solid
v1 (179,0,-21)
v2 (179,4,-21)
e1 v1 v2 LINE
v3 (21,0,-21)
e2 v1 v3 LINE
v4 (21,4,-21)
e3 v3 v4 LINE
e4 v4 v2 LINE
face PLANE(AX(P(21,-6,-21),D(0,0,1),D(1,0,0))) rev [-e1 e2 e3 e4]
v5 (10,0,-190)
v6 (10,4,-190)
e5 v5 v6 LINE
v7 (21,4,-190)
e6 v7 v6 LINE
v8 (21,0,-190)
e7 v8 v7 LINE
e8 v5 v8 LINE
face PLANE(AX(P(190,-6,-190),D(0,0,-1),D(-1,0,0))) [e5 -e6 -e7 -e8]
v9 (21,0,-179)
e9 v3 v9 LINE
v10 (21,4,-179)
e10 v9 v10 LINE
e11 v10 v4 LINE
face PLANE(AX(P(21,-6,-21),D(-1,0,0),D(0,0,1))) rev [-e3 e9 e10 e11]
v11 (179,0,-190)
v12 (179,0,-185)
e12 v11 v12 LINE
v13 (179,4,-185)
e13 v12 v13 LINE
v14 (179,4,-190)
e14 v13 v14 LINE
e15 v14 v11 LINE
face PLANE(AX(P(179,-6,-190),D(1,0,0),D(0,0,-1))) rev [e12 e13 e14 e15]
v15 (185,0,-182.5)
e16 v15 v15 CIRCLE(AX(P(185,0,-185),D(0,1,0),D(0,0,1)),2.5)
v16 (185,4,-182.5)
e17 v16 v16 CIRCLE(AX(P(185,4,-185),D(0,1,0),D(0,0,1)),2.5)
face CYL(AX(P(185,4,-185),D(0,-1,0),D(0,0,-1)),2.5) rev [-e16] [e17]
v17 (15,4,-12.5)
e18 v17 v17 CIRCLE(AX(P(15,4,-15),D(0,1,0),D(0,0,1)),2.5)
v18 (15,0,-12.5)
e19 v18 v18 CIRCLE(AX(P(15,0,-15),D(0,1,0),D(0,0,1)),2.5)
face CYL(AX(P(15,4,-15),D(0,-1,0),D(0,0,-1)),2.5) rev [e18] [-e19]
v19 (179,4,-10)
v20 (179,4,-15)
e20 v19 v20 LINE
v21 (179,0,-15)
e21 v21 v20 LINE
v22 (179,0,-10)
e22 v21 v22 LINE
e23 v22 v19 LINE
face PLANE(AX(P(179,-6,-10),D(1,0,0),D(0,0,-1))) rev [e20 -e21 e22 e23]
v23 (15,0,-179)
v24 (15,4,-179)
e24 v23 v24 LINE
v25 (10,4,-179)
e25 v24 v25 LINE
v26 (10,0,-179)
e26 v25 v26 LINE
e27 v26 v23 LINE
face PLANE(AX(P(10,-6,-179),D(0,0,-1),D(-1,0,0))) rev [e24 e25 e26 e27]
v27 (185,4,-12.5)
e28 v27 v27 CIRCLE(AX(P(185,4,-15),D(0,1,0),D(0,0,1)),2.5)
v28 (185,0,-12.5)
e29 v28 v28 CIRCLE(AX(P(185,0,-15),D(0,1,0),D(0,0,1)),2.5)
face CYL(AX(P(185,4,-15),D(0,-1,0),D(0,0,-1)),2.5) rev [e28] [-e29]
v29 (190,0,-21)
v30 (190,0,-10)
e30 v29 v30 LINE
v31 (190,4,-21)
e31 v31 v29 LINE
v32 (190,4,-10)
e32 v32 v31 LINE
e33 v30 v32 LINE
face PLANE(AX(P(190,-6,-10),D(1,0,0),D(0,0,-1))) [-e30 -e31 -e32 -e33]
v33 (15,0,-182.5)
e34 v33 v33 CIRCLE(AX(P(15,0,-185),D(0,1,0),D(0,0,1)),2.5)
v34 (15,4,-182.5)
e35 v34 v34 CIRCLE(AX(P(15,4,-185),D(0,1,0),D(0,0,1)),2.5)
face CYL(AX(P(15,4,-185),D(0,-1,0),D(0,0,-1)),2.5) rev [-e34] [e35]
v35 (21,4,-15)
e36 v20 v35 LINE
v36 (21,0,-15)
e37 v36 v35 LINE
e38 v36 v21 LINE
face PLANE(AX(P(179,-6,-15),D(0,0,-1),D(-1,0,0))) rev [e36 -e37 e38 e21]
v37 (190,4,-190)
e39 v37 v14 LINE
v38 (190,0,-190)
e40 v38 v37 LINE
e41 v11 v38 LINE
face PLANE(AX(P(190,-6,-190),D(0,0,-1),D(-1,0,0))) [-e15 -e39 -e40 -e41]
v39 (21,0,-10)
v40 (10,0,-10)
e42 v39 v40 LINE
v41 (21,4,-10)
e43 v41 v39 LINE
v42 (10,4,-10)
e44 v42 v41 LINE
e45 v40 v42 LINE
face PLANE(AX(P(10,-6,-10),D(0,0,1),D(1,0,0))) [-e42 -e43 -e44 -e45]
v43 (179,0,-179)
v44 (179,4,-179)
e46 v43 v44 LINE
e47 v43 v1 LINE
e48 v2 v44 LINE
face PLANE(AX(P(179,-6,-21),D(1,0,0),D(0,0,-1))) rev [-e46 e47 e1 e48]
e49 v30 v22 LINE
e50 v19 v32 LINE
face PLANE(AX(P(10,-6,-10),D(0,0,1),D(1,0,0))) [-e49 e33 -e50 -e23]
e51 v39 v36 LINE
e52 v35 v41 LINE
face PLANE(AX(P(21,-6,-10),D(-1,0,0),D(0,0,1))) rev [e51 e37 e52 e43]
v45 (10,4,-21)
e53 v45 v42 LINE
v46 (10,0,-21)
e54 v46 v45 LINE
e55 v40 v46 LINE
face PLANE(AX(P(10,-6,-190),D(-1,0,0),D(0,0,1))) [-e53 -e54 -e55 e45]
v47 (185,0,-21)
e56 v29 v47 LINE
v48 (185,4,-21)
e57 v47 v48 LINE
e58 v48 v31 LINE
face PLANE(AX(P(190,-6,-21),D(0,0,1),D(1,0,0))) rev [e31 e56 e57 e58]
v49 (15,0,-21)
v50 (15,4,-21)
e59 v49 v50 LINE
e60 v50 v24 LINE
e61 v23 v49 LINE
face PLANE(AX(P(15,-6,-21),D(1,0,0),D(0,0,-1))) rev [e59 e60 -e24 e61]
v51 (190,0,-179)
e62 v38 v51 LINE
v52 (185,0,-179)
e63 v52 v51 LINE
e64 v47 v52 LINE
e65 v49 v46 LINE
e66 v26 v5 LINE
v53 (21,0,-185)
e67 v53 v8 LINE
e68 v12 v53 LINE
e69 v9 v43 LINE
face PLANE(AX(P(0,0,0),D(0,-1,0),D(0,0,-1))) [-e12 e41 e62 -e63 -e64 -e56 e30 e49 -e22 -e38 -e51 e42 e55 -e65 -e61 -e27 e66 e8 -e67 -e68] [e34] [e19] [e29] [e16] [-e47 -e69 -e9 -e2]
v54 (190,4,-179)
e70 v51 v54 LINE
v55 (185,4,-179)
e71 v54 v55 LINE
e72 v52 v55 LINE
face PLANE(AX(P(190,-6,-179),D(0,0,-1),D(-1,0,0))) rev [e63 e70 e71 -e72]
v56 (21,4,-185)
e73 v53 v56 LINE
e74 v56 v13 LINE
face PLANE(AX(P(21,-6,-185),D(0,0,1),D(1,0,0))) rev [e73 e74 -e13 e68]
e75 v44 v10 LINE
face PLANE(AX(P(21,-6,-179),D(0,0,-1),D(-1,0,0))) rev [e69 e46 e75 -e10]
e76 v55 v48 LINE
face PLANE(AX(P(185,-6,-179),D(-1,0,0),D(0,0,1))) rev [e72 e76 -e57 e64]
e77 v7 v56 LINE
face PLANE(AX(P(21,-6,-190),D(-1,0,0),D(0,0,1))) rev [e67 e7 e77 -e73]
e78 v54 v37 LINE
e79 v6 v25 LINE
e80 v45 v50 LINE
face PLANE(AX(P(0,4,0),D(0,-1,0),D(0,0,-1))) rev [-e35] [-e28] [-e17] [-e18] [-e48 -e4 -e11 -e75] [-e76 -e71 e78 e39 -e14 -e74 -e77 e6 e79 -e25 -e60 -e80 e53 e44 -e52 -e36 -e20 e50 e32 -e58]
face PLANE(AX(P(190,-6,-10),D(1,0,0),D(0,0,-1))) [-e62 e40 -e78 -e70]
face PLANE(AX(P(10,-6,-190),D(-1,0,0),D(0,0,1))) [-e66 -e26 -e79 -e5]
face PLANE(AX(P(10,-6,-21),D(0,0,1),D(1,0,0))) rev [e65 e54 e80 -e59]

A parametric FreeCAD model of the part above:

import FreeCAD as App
import Part
import Sketcher
Q = App.Units.Quantity

doc = App.newDocument("Part")
params = doc.addObject("Spreadsheet::Sheet", "Params")
for row, (alias, value) in enumerate([
    ("sketch1_diameter", "5 mm"),
    ("sketch1_width", "200 mm"),
    ("pad1_length", "4 mm"),
    ("sketch2_width", "158 mm"),
    ("pocket1_length", "10 mm"),
    ("sketch3_width", "200 mm"),
    ("sketch3_width2", "180 mm"),
    ("pocket2_length", "10 mm"),
    ("sketch4_width", "158 mm"),
    ("sketch4_width2", "5 mm"),
    ("pocket3_length", "10 mm"),
], start=1):
    params.set(f"A{row}", alias)
    params.set(f"B{row}", "=" + value)
    params.setAlias(f"B{row}", alias)

body = doc.addObject("PartDesign::Body", "Body")

# Sketch on XZ plane
sketch1 = doc.addObject("Sketcher::SketchObject", "Sketch")
body.addObject(sketch1)
sketch1.AttachmentSupport = (doc.XZ_Plane, [""])
sketch1.MapMode = "FlatFace"
sketch1.addGeometry([
    Part.LineSegment(App.Vector(0, -200, 0), App.Vector(0, 0, 0)),  # 0
    Part.LineSegment(App.Vector(0, 0, 0), App.Vector(200, 0, 0)),  # 1
    Part.LineSegment(App.Vector(200, 0, 0), App.Vector(200, -200, 0)),  # 2
    Part.LineSegment(App.Vector(200, -200, 0), App.Vector(0, -200, 0)),  # 3
    Part.Circle(App.Vector(15, -15, 0), App.Vector(0, 0, 1), 2.5),  # 4
    Part.Circle(App.Vector(185, -15, 0), App.Vector(0, 0, 1), 2.5),  # 5
    Part.Circle(App.Vector(15, -185, 0), App.Vector(0, 0, 1), 2.5),  # 6
    Part.Circle(App.Vector(185, -185, 0), App.Vector(0, 0, 1), 2.5),  # 7
], False)
sketch1.addConstraint([
    Sketcher.Constraint("Coincident", 0, 2, 1, 1),
    Sketcher.Constraint("Coincident", 1, 2, 2, 1),
    Sketcher.Constraint("Coincident", 2, 2, 3, 1),
    Sketcher.Constraint("Coincident", 3, 2, 0, 1),
    Sketcher.Constraint("Vertical", 0),
    Sketcher.Constraint("Horizontal", 1),
    Sketcher.Constraint("Vertical", 2),
    Sketcher.Constraint("Horizontal", 3),
    Sketcher.Constraint("Coincident", 0, 2, -1, 1),
    Sketcher.Constraint("Equal", 4, 5),
    Sketcher.Constraint("Equal", 5, 6),
    Sketcher.Constraint("Equal", 6, 7),
    Sketcher.Constraint("Horizontal", 4, 3, 5, 3),
    Sketcher.Constraint("Horizontal", 6, 3, 7, 3),
    Sketcher.Constraint("Vertical", 4, 3, 6, 3),
    Sketcher.Constraint("Vertical", 5, 3, 7, 3),
    Sketcher.Constraint("Equal", 3, 0),
    Sketcher.Constraint("Diameter", 4, Q("5 mm")),
    Sketcher.Constraint("DistanceX", 1, 1, 1, 2, Q("200 mm")),
    Sketcher.Constraint("DistanceX", -1, 1, 4, 3, Q("15 mm")),
    Sketcher.Constraint("DistanceY", 4, 3, -1, 1, Q("15 mm")),
    Sketcher.Constraint("DistanceX", -1, 1, 5, 3, Q("185 mm")),
    Sketcher.Constraint("DistanceY", 6, 3, -1, 1, Q("185 mm")),
])
sketch1.setExpression("Constraints[17]", "Params.sketch1_diameter")
sketch1.setExpression("Constraints[18]", "Params.sketch1_width")
pad1 = doc.addObject("PartDesign::Pad", "Pad")
body.addObject(pad1)
pad1.Profile = sketch1
pad1.setExpression("Length", "Params.pad1_length")
pad1.Reversed = True

# Sketch on XZ plane
sketch2 = doc.addObject("Sketcher::SketchObject", "Sketch001")
body.addObject(sketch2)
sketch2.AttachmentSupport = (doc.XZ_Plane, [""])
sketch2.MapMode = "FlatFace"
sketch2.AttachmentOffset = App.Placement(App.Vector(0, 0, -4), App.Rotation())
sketch2.addGeometry([
    Part.LineSegment(App.Vector(21, -179, 0), App.Vector(21, -21, 0)),
    Part.LineSegment(App.Vector(21, -21, 0), App.Vector(179, -21, 0)),
    Part.LineSegment(App.Vector(179, -21, 0), App.Vector(179, -179, 0)),
    Part.LineSegment(App.Vector(179, -179, 0), App.Vector(21, -179, 0)),
], False)
sketch2.addConstraint([
    Sketcher.Constraint("Coincident", 0, 2, 1, 1),
    Sketcher.Constraint("Coincident", 1, 2, 2, 1),
    Sketcher.Constraint("Coincident", 2, 2, 3, 1),
    Sketcher.Constraint("Coincident", 3, 2, 0, 1),
    Sketcher.Constraint("Vertical", 0),
    Sketcher.Constraint("Horizontal", 1),
    Sketcher.Constraint("Vertical", 2),
    Sketcher.Constraint("Horizontal", 3),
    Sketcher.Constraint("Equal", 3, 0),
    Sketcher.Constraint("DistanceX", 1, 1, 1, 2, Q("158 mm")),
    Sketcher.Constraint("DistanceX", -1, 1, 0, 2, Q("21 mm")),
    Sketcher.Constraint("DistanceY", 0, 2, -1, 1, Q("21 mm")),
])
sketch2.setExpression("Constraints[9]", "Params.sketch2_width")
pocket1 = doc.addObject("PartDesign::Pocket", "Pocket")
body.addObject(pocket1)
pocket1.Profile = sketch2
pocket1.setExpression("Length", "Params.pocket1_length")
pocket1.Reversed = True

# Sketch on XZ plane
sketch3 = doc.addObject("Sketcher::SketchObject", "Sketch002")
body.addObject(sketch3)
sketch3.AttachmentSupport = (doc.XZ_Plane, [""])
sketch3.MapMode = "FlatFace"
sketch3.AttachmentOffset = App.Placement(App.Vector(0, 0, -4), App.Rotation())
sketch3.addGeometry([
    Part.LineSegment(App.Vector(0, -200, 0), App.Vector(0, 0, 0)),  # 0
    Part.LineSegment(App.Vector(0, 0, 0), App.Vector(200, 0, 0)),  # 1
    Part.LineSegment(App.Vector(200, 0, 0), App.Vector(200, -200, 0)),  # 2
    Part.LineSegment(App.Vector(200, -200, 0), App.Vector(0, -200, 0)),  # 3
    Part.LineSegment(App.Vector(190, -10, 0), App.Vector(10, -10, 0)),  # 4
    Part.LineSegment(App.Vector(10, -10, 0), App.Vector(10, -190, 0)),  # 5
    Part.LineSegment(App.Vector(10, -190, 0), App.Vector(190, -190, 0)),  # 6
    Part.LineSegment(App.Vector(190, -190, 0), App.Vector(190, -10, 0)),  # 7
], False)
sketch3.addConstraint([
    Sketcher.Constraint("Coincident", 0, 2, 1, 1),
    Sketcher.Constraint("Coincident", 1, 2, 2, 1),
    Sketcher.Constraint("Coincident", 2, 2, 3, 1),
    Sketcher.Constraint("Coincident", 3, 2, 0, 1),
    Sketcher.Constraint("Coincident", 4, 2, 5, 1),
    Sketcher.Constraint("Coincident", 5, 2, 6, 1),
    Sketcher.Constraint("Coincident", 6, 2, 7, 1),
    Sketcher.Constraint("Coincident", 7, 2, 4, 1),
    Sketcher.Constraint("Vertical", 0),
    Sketcher.Constraint("Horizontal", 1),
    Sketcher.Constraint("Vertical", 2),
    Sketcher.Constraint("Horizontal", 3),
    Sketcher.Constraint("Horizontal", 4),
    Sketcher.Constraint("Vertical", 5),
    Sketcher.Constraint("Horizontal", 6),
    Sketcher.Constraint("Vertical", 7),
    Sketcher.Constraint("Coincident", 0, 2, -1, 1),
    Sketcher.Constraint("Equal", 3, 0),
    Sketcher.Constraint("Equal", 6, 5),
    Sketcher.Constraint("DistanceX", 1, 1, 1, 2, Q("200 mm")),
    Sketcher.Constraint("DistanceX", 4, 2, 4, 1, Q("180 mm")),
    Sketcher.Constraint("DistanceX", -1, 1, 4, 2, Q("10 mm")),
    Sketcher.Constraint("DistanceY", 4, 2, -1, 1, Q("10 mm")),
])
sketch3.setExpression("Constraints[19]", "Params.sketch3_width")
sketch3.setExpression("Constraints[20]", "Params.sketch3_width2")
pocket2 = doc.addObject("PartDesign::Pocket", "Pocket001")
body.addObject(pocket2)
pocket2.Profile = sketch3
pocket2.setExpression("Length", "Params.pocket2_length")
pocket2.Reversed = True

# Sketch on XZ plane
sketch4 = doc.addObject("Sketcher::SketchObject", "Sketch003")
body.addObject(sketch4)
sketch4.AttachmentSupport = (doc.XZ_Plane, [""])
sketch4.MapMode = "FlatFace"
sketch4.AttachmentOffset = App.Placement(App.Vector(0, 0, -4), App.Rotation())
sketch4.addGeometry([
    Part.LineSegment(App.Vector(21, -190, 0), App.Vector(21, -185, 0)),  # 0
    Part.LineSegment(App.Vector(21, -185, 0), App.Vector(179, -185, 0)),  # 1
    Part.LineSegment(App.Vector(179, -185, 0), App.Vector(179, -190, 0)),  # 2
    Part.LineSegment(App.Vector(179, -190, 0), App.Vector(21, -190, 0)),  # 3
    Part.LineSegment(App.Vector(185, -179, 0), App.Vector(185, -21, 0)),  # 4
    Part.LineSegment(App.Vector(185, -21, 0), App.Vector(190, -21, 0)),  # 5
    Part.LineSegment(App.Vector(190, -21, 0), App.Vector(190, -179, 0)),  # 6
    Part.LineSegment(App.Vector(190, -179, 0), App.Vector(185, -179, 0)),  # 7
    Part.LineSegment(App.Vector(21, -15, 0), App.Vector(21, -10, 0)),  # 8
    Part.LineSegment(App.Vector(21, -10, 0), App.Vector(179, -10, 0)),  # 9
    Part.LineSegment(App.Vector(179, -10, 0), App.Vector(179, -15, 0)),  # 10
    Part.LineSegment(App.Vector(179, -15, 0), App.Vector(21, -15, 0)),  # 11
    Part.LineSegment(App.Vector(10, -179, 0), App.Vector(10, -21, 0)),  # 12
    Part.LineSegment(App.Vector(10, -21, 0), App.Vector(15, -21, 0)),  # 13
    Part.LineSegment(App.Vector(15, -21, 0), App.Vector(15, -179, 0)),  # 14
    Part.LineSegment(App.Vector(15, -179, 0), App.Vector(10, -179, 0)),  # 15
], False)
sketch4.addConstraint([
    Sketcher.Constraint("Coincident", 0, 2, 1, 1),
    Sketcher.Constraint("Coincident", 1, 2, 2, 1),
    Sketcher.Constraint("Coincident", 2, 2, 3, 1),
    Sketcher.Constraint("Coincident", 3, 2, 0, 1),
    Sketcher.Constraint("Coincident", 4, 2, 5, 1),
    Sketcher.Constraint("Coincident", 5, 2, 6, 1),
    Sketcher.Constraint("Coincident", 6, 2, 7, 1),
    Sketcher.Constraint("Coincident", 7, 2, 4, 1),
    Sketcher.Constraint("Coincident", 8, 2, 9, 1),
    Sketcher.Constraint("Coincident", 9, 2, 10, 1),
    Sketcher.Constraint("Coincident", 10, 2, 11, 1),
    Sketcher.Constraint("Coincident", 11, 2, 8, 1),
    Sketcher.Constraint("Coincident", 12, 2, 13, 1),
    Sketcher.Constraint("Coincident", 13, 2, 14, 1),
    Sketcher.Constraint("Coincident", 14, 2, 15, 1),
    Sketcher.Constraint("Coincident", 15, 2, 12, 1),
    Sketcher.Constraint("Vertical", 0),
    Sketcher.Constraint("Horizontal", 1),
    Sketcher.Constraint("Vertical", 2),
    Sketcher.Constraint("Horizontal", 3),
    Sketcher.Constraint("Vertical", 4),
    Sketcher.Constraint("Horizontal", 5),
    Sketcher.Constraint("Vertical", 6),
    Sketcher.Constraint("Horizontal", 7),
    Sketcher.Constraint("Vertical", 8),
    Sketcher.Constraint("Horizontal", 9),
    Sketcher.Constraint("Vertical", 10),
    Sketcher.Constraint("Horizontal", 11),
    Sketcher.Constraint("Vertical", 12),
    Sketcher.Constraint("Horizontal", 13),
    Sketcher.Constraint("Vertical", 14),
    Sketcher.Constraint("Horizontal", 15),
    Sketcher.Constraint("Horizontal", 5, 2, 12, 2),
    Sketcher.Constraint("Horizontal", 7, 2, 14, 2),
    Sketcher.Constraint("Vertical", 3, 2, 8, 2),
    Sketcher.Constraint("Vertical", 2, 2, 9, 2),
    Sketcher.Constraint("Equal", 7, 13),
    Sketcher.Constraint("Equal", 15, 0),
    Sketcher.Constraint("Equal", 11, 4),
    Sketcher.Constraint("Equal", 2, 8),
    Sketcher.Constraint("DistanceX", 1, 1, 1, 2, Q("158 mm")),
    Sketcher.Constraint("DistanceX", 5, 1, 5, 2, Q("5 mm")),
    Sketcher.Constraint("DistanceX", -1, 1, 0, 2, Q("21 mm")),
    Sketcher.Constraint("DistanceY", 0, 2, -1, 1, Q("185 mm")),
    Sketcher.Constraint("DistanceX", -1, 1, 4, 2, Q("185 mm")),
    Sketcher.Constraint("DistanceY", 4, 2, -1, 1, Q("21 mm")),
    Sketcher.Constraint("DistanceY", 8, 2, -1, 1, Q("10 mm")),
    Sketcher.Constraint("DistanceX", -1, 1, 12, 2, Q("10 mm")),
])
sketch4.setExpression("Constraints[40]", "Params.sketch4_width")
sketch4.setExpression("Constraints[41]", "Params.sketch4_width2")
pocket3 = doc.addObject("PartDesign::Pocket", "Pocket002")
body.addObject(pocket3)
pocket3.Profile = sketch4
pocket3.setExpression("Length", "Params.pocket3_length")
pocket3.Reversed = True

doc.recompute()
